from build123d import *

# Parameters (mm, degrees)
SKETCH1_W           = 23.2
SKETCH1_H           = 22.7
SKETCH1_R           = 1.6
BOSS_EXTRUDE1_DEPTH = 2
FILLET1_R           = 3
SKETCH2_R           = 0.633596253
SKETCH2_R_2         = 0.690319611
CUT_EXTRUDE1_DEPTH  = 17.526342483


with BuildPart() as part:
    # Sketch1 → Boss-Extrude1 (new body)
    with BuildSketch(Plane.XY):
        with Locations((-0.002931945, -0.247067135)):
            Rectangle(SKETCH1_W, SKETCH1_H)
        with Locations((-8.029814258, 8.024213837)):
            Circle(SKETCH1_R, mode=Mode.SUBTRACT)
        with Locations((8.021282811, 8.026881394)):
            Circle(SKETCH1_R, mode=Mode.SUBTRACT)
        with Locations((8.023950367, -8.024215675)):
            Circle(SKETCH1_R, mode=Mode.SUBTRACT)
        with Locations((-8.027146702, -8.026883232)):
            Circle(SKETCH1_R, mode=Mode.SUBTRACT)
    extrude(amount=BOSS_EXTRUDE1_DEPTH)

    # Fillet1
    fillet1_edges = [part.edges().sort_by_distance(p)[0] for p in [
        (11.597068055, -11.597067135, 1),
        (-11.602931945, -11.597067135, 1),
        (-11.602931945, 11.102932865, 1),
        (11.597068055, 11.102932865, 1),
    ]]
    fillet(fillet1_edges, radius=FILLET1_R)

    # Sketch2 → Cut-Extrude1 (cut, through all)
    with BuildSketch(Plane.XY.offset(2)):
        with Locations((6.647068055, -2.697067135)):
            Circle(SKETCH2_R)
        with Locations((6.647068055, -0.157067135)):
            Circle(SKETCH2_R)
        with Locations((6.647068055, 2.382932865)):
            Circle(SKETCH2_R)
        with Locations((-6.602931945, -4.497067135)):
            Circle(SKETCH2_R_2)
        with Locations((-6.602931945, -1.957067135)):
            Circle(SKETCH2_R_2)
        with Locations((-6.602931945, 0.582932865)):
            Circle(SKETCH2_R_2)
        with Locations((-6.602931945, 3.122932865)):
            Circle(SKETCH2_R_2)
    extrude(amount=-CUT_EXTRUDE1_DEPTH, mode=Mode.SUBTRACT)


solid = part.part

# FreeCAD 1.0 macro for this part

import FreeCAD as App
import Part
import Sketcher

V = App.Vector
Q = App.Units.Quantity


def edges_at(feature, points):
    """Names of the edges that pass closest to the given points."""
    edges = feature.Shape.Edges
    near = lambda p: min(range(len(edges)), key=lambda i: edges[i].distToShape(Part.Vertex(*p))[0])
    return sorted({f"Edge{near(p) + 1}" for p in points})

doc = App.newDocument("Part")
body = doc.addObject("PartDesign::Body", "Body")

# Sketch on XY plane
sketch1 = body.newObject("Sketcher::SketchObject", "Sketch")
sketch1.AttachmentSupport = (doc.getObject("XY_Plane"), [""])
sketch1.MapMode = "FlatFace"
sketch1.addGeometry(Part.LineSegment(V(-11.602932, 11.102933, 0), V(-11.602932, -11.597067, 0)), False)
sketch1.addGeometry(Part.LineSegment(V(-11.602932, -11.597067, 0), V(11.597068, -11.597067, 0)), False)
sketch1.addGeometry(Part.LineSegment(V(11.597068, -11.597067, 0), V(11.597068, 11.102933, 0)), False)
sketch1.addGeometry(Part.LineSegment(V(11.597068, 11.102933, 0), V(-11.602932, 11.102933, 0)), False)
sketch1.addGeometry(Part.Circle(V(-8.027147, -8.026883, 0), V(0, 0, 1), 1.6), False)
sketch1.addGeometry(Part.Circle(V(8.02395, -8.024216, 0), V(0, 0, 1), 1.6), False)
sketch1.addGeometry(Part.Circle(V(-8.029814, 8.024214, 0), V(0, 0, 1), 1.6), False)
sketch1.addGeometry(Part.Circle(V(8.021283, 8.026881, 0), V(0, 0, 1), 1.6), False)
sketch1.addConstraint(Sketcher.Constraint("Coincident", 0, 2, 1, 1))
sketch1.addConstraint(Sketcher.Constraint("Coincident", 1, 2, 2, 1))
sketch1.addConstraint(Sketcher.Constraint("Coincident", 2, 2, 3, 1))
sketch1.addConstraint(Sketcher.Constraint("Coincident", 3, 2, 0, 1))
sketch1.addConstraint(Sketcher.Constraint("Vertical", 0))
sketch1.addConstraint(Sketcher.Constraint("Horizontal", 1))
sketch1.addConstraint(Sketcher.Constraint("Vertical", 2))
sketch1.addConstraint(Sketcher.Constraint("Horizontal", 3))
sketch1.addConstraint(Sketcher.Constraint("Equal", 4, 5))
sketch1.addConstraint(Sketcher.Constraint("Equal", 5, 6))
sketch1.addConstraint(Sketcher.Constraint("Equal", 6, 7))
sketch1.addConstraint(Sketcher.Constraint("Diameter", 4, Q("3.2 mm")))
sketch1.addConstraint(Sketcher.Constraint("DistanceX", 1, 1, 1, 2, Q("23.2 mm")))
sketch1.addConstraint(Sketcher.Constraint("DistanceY", 0, 2, 0, 1, Q("22.7 mm")))
sketch1.addConstraint(Sketcher.Constraint("DistanceX", -1, 1, 5, 3, Q("8.02395 mm")))
sketch1.addConstraint(Sketcher.Constraint("DistanceY", -1, 1, 7, 3, Q("8.026881 mm")))
sketch1.addConstraint(Sketcher.Constraint("DistanceX", 0, 2, -1, 1, Q("11.602932 mm")))
sketch1.addConstraint(Sketcher.Constraint("DistanceY", 5, 3, 6, 3, Q("16.04843 mm")))
sketch1.addConstraint(Sketcher.Constraint("DistanceX", 4, 3, 7, 3, Q("16.04843 mm")))
sketch1.addConstraint(Sketcher.Constraint("DistanceY", 0, 2, 6, 3, Q("19.621281 mm")))
sketch1.addConstraint(Sketcher.Constraint("DistanceY", 0, 2, 7, 3, Q("19.623949 mm")))
sketch1.addConstraint(Sketcher.Constraint("DistanceX", 4, 3, -1, 1, Q("8.027147 mm")))
sketch1.addConstraint(Sketcher.Constraint("DistanceY", 4, 3, -1, 1, Q("8.026883 mm")))
sketch1.addConstraint(Sketcher.Constraint("DistanceX", 6, 3, -1, 1, Q("8.029814 mm")))
pad1 = body.newObject("PartDesign::Pad", "Pad")
pad1.Profile = sketch1
pad1.Length = 2
doc.recompute()

fillet = body.newObject("PartDesign::Fillet", "Fillet")
fillet.Base = (pad1, edges_at(pad1, [
    (11.597, -11.597, 1),
    (-11.603, -11.597, 1),
    (-11.603, 11.103, 1),
    (11.597, 11.103, 1),
]))
fillet.Radius = 3

# Sketch on XY plane
sketch2 = body.newObject("Sketcher::SketchObject", "Sketch001")
sketch2.AttachmentSupport = (doc.getObject("XY_Plane"), [""])
sketch2.MapMode = "FlatFace"
sketch2.AttachmentOffset = App.Placement(V(0, 0, 2), App.Rotation())
sketch2.addGeometry(Part.Circle(V(6.647068, -2.697067, 0), V(0, 0, 1), 0.633596), False)
sketch2.addGeometry(Part.Circle(V(6.647068, -0.157067, 0), V(0, 0, 1), 0.633596), False)
sketch2.addGeometry(Part.Circle(V(6.647068, 2.382933, 0), V(0, 0, 1), 0.633596), False)
sketch2.addGeometry(Part.Circle(V(-6.602932, -4.497067, 0), V(0, 0, 1), 0.69032), False)
sketch2.addGeometry(Part.Circle(V(-6.602932, -1.957067, 0), V(0, 0, 1), 0.69032), False)
sketch2.addGeometry(Part.Circle(V(-6.602932, 0.582933, 0), V(0, 0, 1), 0.69032), False)
sketch2.addGeometry(Part.Circle(V(-6.602932, 3.122933, 0), V(0, 0, 1), 0.69032), False)
sketch2.addConstraint(Sketcher.Constraint("Equal", 0, 1))
sketch2.addConstraint(Sketcher.Constraint("Equal", 1, 2))
sketch2.addConstraint(Sketcher.Constraint("Equal", 3, 4))
sketch2.addConstraint(Sketcher.Constraint("Equal", 4, 5))
sketch2.addConstraint(Sketcher.Constraint("Equal", 5, 6))
sketch2.addConstraint(Sketcher.Constraint("Vertical", 0, 3, 1, 3))
sketch2.addConstraint(Sketcher.Constraint("Vertical", 1, 3, 2, 3))
sketch2.addConstraint(Sketcher.Constraint("Vertical", 3, 3, 4, 3))
sketch2.addConstraint(Sketcher.Constraint("Vertical", 4, 3, 5, 3))
sketch2.addConstraint(Sketcher.Constraint("Vertical", 5, 3, 6, 3))
sketch2.addConstraint(Sketcher.Constraint("DistanceY", 3, 3, 0, 3, Q("1.8 mm")))
sketch2.addConstraint(Sketcher.Constraint("DistanceY", 4, 3, 1, 3, Q("1.8 mm")))
sketch2.addConstraint(Sketcher.Constraint("DistanceY", 5, 3, 2, 3, Q("1.8 mm")))
sketch2.addConstraint(Sketcher.Constraint("Diameter", 3, Q("1.380639 mm")))
sketch2.addConstraint(Sketcher.Constraint("DistanceY", 0, 3, 1, 3, Q("2.54 mm")))
sketch2.addConstraint(Sketcher.Constraint("DistanceY", 1, 3, 2, 3, Q("2.54 mm")))
sketch2.addConstraint(Sketcher.Constraint("DistanceX", 3, 3, 0, 3, Q("13.25 mm")))
sketch2.addConstraint(Sketcher.Constraint("DistanceY", 5, 3, 6, 3, Q("2.54 mm")))
sketch2.addConstraint(Sketcher.Constraint("Diameter", 0, Q("1.267193 mm")))
sketch2.addConstraint(Sketcher.Constraint("DistanceX", -1, 1, 0, 3, Q("6.647068 mm")))
sketch2.addConstraint(Sketcher.Constraint("DistanceY", 0, 3, -1, 1, Q("2.697067 mm")))
pocket1 = body.newObject("PartDesign::Pocket", "Pocket")
pocket1.Profile = sketch2
pocket1.Type = "ThroughAll"

doc.recompute()
